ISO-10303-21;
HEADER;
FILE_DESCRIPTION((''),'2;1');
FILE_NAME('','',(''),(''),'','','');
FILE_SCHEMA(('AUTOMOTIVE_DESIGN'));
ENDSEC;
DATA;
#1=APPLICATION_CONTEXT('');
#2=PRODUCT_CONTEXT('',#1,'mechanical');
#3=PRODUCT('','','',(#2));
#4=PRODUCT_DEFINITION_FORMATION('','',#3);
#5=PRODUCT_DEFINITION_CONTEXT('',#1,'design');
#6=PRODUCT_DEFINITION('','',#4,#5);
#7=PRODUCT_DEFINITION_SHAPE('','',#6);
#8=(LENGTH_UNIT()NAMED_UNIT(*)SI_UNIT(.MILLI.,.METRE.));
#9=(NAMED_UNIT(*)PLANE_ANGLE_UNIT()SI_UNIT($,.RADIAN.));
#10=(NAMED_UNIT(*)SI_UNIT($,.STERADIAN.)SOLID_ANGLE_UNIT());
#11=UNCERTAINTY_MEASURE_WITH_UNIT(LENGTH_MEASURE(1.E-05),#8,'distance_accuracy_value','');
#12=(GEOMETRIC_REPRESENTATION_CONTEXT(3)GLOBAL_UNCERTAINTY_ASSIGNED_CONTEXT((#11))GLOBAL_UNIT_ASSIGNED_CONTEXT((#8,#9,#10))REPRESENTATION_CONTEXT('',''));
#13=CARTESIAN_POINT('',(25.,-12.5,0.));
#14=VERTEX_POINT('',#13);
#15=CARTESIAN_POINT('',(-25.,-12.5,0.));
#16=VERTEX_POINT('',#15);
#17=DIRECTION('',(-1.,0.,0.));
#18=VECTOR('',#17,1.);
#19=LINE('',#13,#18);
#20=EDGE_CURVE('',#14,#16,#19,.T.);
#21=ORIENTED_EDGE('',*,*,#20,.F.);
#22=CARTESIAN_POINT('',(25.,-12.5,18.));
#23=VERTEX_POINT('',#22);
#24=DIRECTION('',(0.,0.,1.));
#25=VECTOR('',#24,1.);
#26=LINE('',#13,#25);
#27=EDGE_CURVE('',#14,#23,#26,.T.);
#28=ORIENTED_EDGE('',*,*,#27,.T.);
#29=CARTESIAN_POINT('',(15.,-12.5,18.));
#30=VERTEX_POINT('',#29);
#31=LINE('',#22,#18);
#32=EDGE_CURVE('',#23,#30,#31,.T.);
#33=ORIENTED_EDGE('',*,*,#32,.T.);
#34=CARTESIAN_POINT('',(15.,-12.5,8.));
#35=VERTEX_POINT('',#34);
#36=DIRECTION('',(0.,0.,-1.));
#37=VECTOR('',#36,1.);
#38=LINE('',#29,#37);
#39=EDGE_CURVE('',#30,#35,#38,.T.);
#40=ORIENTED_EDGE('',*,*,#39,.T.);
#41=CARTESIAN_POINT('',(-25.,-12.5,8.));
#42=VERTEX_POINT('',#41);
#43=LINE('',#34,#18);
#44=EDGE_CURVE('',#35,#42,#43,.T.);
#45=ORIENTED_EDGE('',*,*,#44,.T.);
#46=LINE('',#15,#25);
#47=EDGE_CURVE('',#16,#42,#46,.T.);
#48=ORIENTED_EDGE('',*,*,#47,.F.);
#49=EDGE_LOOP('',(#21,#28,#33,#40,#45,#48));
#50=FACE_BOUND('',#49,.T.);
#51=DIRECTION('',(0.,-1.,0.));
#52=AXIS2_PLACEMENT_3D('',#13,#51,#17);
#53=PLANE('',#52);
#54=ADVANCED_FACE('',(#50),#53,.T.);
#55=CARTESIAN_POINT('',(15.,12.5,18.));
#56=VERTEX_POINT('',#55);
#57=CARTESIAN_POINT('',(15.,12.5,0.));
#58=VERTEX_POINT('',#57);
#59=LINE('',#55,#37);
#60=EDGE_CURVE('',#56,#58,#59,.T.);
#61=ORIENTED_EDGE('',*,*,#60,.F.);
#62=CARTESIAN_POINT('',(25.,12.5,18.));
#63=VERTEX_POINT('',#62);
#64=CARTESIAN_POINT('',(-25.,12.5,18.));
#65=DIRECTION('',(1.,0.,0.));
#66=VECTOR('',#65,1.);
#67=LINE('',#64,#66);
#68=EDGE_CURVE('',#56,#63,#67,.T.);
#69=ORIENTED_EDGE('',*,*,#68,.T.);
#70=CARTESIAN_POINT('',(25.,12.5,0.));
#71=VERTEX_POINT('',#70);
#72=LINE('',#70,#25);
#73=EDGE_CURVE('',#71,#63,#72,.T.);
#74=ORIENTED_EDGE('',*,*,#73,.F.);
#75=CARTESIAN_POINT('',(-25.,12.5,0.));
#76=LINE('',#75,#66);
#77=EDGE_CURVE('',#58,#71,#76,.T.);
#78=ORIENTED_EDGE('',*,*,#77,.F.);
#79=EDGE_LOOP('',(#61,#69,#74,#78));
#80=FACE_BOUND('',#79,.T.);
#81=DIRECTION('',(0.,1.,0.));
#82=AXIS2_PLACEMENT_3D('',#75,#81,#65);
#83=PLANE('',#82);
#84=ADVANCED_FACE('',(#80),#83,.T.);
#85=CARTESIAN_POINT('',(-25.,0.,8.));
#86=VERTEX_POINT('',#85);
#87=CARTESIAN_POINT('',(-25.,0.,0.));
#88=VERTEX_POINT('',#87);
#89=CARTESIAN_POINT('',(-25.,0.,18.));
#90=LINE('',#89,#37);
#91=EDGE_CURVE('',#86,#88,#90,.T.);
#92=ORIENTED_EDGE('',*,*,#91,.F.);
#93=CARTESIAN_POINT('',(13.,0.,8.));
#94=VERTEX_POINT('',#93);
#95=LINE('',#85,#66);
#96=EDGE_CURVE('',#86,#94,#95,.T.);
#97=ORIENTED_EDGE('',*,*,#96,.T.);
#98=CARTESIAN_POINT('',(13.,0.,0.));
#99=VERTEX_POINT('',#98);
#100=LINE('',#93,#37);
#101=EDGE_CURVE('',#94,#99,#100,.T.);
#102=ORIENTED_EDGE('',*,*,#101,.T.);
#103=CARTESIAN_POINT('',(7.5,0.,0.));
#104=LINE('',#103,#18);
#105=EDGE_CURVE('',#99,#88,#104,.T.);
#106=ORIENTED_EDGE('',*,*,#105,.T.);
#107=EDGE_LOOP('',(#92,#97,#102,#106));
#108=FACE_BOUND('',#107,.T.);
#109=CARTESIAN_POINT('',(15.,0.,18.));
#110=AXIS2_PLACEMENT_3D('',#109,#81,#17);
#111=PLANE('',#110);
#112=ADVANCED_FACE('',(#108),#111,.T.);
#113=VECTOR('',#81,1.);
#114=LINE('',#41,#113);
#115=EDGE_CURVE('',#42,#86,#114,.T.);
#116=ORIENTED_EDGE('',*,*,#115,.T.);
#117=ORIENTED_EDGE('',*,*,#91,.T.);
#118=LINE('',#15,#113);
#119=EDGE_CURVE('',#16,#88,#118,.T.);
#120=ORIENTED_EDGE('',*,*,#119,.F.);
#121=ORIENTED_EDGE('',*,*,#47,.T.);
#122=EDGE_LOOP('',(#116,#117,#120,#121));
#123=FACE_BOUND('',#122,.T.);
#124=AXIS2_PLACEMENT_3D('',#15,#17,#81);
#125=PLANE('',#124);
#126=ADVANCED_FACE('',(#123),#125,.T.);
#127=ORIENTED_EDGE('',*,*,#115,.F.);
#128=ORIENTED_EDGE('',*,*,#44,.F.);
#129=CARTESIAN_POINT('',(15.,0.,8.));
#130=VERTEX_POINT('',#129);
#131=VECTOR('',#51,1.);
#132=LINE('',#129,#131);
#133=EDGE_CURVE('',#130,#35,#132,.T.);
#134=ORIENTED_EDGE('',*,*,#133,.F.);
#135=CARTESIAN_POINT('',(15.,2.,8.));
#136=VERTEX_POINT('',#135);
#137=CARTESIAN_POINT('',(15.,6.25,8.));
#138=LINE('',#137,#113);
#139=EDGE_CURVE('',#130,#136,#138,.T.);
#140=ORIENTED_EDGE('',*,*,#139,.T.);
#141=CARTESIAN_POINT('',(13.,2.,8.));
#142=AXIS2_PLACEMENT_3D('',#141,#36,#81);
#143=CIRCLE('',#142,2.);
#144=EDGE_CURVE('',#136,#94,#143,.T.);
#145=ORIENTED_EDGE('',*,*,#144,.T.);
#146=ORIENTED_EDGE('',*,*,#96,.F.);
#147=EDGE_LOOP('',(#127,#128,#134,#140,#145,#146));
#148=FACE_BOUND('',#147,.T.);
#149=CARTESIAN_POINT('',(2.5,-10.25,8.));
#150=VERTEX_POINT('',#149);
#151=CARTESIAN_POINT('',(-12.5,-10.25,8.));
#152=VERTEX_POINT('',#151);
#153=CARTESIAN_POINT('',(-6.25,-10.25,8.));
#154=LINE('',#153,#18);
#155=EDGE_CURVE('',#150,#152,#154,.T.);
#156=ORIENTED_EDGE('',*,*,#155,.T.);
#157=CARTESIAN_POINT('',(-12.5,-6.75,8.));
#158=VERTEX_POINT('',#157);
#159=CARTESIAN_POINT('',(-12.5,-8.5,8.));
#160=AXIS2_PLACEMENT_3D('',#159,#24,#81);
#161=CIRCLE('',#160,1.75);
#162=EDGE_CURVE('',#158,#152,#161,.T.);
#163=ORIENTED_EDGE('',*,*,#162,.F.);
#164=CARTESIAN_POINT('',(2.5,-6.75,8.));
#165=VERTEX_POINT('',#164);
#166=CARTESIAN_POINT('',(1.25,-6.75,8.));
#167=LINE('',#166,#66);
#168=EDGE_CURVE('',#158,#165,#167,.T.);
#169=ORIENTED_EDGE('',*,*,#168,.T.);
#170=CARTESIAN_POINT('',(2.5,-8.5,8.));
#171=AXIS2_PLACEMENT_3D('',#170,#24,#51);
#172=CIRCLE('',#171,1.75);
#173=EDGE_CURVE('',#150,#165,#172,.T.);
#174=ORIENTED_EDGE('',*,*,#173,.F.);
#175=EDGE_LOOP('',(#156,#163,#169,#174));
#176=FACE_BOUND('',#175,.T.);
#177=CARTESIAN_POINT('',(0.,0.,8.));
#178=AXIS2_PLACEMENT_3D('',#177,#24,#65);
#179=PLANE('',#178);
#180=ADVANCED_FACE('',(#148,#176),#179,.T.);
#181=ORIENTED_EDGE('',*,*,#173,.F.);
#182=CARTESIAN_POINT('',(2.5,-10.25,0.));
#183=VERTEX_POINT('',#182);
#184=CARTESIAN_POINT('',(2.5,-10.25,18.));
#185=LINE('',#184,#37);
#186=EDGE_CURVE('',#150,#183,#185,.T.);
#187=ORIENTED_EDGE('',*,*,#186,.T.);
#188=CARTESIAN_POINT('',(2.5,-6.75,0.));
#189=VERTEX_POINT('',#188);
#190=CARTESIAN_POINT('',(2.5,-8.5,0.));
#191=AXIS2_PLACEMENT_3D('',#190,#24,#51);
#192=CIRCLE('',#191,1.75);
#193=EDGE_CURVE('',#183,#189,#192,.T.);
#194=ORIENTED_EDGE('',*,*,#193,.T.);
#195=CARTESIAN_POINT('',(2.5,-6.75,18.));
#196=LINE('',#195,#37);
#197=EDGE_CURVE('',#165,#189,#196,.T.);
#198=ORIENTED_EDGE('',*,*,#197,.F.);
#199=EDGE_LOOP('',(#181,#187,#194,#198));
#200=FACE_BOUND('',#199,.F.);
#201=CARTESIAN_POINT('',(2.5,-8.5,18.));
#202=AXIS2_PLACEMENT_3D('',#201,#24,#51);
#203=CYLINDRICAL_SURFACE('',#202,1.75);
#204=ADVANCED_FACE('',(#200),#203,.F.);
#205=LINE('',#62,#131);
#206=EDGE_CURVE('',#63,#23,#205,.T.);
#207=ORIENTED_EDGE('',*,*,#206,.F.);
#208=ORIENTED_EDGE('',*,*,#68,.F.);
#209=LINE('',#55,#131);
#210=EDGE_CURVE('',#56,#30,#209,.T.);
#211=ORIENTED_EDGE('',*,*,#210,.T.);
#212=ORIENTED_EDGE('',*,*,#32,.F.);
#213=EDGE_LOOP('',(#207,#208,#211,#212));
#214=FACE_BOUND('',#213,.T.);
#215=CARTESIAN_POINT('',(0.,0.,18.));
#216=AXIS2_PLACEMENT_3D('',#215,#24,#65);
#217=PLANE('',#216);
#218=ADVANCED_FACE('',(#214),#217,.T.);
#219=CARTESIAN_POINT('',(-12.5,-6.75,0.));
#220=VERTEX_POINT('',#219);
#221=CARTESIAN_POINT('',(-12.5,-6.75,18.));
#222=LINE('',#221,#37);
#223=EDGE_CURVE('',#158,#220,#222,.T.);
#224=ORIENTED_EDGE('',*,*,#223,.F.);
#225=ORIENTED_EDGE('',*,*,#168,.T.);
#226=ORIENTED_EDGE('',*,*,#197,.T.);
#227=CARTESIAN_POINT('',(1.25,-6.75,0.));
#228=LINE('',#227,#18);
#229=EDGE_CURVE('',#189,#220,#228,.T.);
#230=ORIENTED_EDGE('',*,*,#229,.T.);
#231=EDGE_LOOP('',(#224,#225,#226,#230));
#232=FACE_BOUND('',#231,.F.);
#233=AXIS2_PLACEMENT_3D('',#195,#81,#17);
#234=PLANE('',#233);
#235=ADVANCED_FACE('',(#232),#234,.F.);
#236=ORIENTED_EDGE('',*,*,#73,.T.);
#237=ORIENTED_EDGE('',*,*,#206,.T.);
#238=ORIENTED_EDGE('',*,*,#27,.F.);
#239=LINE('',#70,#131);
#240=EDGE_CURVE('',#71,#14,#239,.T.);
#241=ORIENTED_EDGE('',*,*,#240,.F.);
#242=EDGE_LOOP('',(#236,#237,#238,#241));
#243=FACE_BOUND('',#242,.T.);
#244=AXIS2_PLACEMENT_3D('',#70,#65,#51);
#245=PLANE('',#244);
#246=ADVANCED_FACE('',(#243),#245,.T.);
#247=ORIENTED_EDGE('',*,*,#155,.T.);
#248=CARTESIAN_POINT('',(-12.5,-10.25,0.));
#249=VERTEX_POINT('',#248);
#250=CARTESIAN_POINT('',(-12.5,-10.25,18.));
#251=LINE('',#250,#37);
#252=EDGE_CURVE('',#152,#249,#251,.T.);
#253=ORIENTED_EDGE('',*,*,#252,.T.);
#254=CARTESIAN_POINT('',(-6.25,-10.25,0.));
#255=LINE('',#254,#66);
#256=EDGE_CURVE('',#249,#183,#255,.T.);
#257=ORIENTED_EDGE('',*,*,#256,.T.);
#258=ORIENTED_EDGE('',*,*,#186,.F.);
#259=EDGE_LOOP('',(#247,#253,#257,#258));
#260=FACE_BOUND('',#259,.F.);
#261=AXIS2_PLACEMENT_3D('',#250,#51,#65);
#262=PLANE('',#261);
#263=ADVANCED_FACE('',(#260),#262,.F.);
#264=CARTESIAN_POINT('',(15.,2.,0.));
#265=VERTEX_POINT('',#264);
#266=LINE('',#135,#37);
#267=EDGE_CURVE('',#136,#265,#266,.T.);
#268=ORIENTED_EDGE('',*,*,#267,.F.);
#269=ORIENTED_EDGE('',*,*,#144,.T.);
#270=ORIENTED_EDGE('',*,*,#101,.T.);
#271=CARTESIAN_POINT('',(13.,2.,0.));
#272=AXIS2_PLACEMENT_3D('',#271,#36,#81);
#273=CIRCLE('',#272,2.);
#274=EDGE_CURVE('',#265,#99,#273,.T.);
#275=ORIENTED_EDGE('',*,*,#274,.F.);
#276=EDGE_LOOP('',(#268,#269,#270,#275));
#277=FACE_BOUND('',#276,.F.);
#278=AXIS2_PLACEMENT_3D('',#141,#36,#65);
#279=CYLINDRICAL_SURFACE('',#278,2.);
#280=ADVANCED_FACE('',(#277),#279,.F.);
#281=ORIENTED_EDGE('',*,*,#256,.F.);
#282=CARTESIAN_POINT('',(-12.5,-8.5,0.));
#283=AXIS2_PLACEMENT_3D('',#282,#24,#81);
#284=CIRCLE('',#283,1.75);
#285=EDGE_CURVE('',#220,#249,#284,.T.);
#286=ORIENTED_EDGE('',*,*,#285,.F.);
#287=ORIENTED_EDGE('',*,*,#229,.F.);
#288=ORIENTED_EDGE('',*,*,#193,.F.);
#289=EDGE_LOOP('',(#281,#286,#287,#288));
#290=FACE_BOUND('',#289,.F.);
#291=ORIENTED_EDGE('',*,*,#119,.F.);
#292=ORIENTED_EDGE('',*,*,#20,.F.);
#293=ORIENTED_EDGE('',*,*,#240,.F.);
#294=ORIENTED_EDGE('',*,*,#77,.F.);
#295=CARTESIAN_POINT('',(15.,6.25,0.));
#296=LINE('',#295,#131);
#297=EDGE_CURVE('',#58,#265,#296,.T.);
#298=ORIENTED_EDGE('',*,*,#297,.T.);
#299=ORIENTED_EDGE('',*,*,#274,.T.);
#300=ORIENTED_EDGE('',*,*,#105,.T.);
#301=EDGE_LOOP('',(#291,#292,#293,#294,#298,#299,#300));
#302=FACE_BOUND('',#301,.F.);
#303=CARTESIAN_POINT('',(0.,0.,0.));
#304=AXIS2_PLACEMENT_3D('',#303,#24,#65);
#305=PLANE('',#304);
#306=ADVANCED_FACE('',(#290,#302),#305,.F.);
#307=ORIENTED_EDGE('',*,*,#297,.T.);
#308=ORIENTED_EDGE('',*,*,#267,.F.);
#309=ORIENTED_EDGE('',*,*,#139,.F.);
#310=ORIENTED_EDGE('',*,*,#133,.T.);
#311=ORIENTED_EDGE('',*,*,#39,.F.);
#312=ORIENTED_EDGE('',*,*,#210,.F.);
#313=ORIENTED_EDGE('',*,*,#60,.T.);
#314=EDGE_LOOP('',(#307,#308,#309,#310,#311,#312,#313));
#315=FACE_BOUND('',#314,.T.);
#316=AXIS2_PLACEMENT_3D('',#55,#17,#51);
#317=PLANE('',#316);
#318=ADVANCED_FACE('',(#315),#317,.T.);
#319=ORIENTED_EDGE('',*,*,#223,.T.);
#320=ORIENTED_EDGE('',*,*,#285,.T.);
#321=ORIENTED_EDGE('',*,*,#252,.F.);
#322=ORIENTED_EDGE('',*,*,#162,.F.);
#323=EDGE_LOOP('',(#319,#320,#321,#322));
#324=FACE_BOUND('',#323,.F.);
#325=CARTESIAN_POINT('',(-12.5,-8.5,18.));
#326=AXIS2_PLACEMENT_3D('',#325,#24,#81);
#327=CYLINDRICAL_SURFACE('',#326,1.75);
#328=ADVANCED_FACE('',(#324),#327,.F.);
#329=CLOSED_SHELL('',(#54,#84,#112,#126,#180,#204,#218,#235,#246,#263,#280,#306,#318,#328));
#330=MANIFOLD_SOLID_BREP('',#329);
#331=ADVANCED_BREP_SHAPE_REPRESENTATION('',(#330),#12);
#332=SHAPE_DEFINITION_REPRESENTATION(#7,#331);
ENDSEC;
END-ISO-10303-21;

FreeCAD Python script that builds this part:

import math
import FreeCAD as App
import Part
import Sketcher
Q = App.Units.Quantity


def edges_at(feature, points):
    """Names of the edges that pass closest to the given points."""
    edges = feature.Shape.Edges
    near = lambda p: min(range(len(edges)), key=lambda i: edges[i].distToShape(Part.Vertex(*p))[0])
    return sorted({f"Edge{near(p) + 1}" for p in points})

doc = App.newDocument("Part")
body = doc.addObject("PartDesign::Body", "Body")

# Sketch on XY plane
sketch1 = body.newObject("Sketcher::SketchObject", "Sketch")
sketch1.AttachmentSupport = (doc.getObject("XY_Plane"), [""])
sketch1.MapMode = "FlatFace"
sketch1.addGeometry([
    Part.LineSegment(App.Vector(25, 12.5, 0), App.Vector(-25, 12.5, 0)),
    Part.LineSegment(App.Vector(-25, 12.5, 0), App.Vector(-25, -12.5, 0)),
    Part.LineSegment(App.Vector(-25, -12.5, 0), App.Vector(25, -12.5, 0)),
    Part.LineSegment(App.Vector(25, -12.5, 0), App.Vector(25, 12.5, 0)),
], False)
sketch1.addConstraint([
    Sketcher.Constraint("Coincident", 0, 2, 1, 1),
    Sketcher.Constraint("Coincident", 1, 2, 2, 1),
    Sketcher.Constraint("Coincident", 2, 2, 3, 1),
    Sketcher.Constraint("Coincident", 3, 2, 0, 1),
    Sketcher.Constraint("Horizontal", 0),
    Sketcher.Constraint("Vertical", 1),
    Sketcher.Constraint("Horizontal", 2),
    Sketcher.Constraint("Vertical", 3),
    Sketcher.Constraint("Symmetric", 0, 2, 2, 2, -1, 1),
    Sketcher.Constraint("DistanceX", 0, 2, 0, 1, Q("50 mm")),
    Sketcher.Constraint("DistanceY", 1, 2, 1, 1, Q("25 mm")),
])
pad1 = body.newObject("PartDesign::Pad", "Pad")
pad1.Profile = sketch1
pad1.Length = 18

# Sketch on XY plane
sketch2 = body.newObject("Sketcher::SketchObject", "Sketch001")
sketch2.AttachmentSupport = (doc.getObject("XY_Plane"), [""])
sketch2.MapMode = "FlatFace"
sketch2.AttachmentOffset = App.Placement(App.Vector(0, 0, 18), App.Rotation())
sketch2.addGeometry([
    Part.ArcOfCircle(Part.Circle(App.Vector(2.5, -8.5, 0), App.Vector(0, 0, 1), 1.75), math.radians(-90), math.radians(90)),
    Part.LineSegment(App.Vector(2.5, -6.75, 0), App.Vector(-12.5, -6.75, 0)),
    Part.ArcOfCircle(Part.Circle(App.Vector(-12.5, -8.5, 0), App.Vector(0, 0, 1), 1.75), math.radians(90), math.radians(270)),
    Part.LineSegment(App.Vector(-12.5, -10.25, 0), App.Vector(2.5, -10.25, 0)),
], False)
sketch2.addConstraint([
    Sketcher.Constraint("Tangent", 0, 2, 1, 1),
    Sketcher.Constraint("Tangent", 1, 2, 2, 1),
    Sketcher.Constraint("Tangent", 2, 2, 3, 1),
    Sketcher.Constraint("Tangent", 3, 2, 0, 1),
    Sketcher.Constraint("Horizontal", 1),
    Sketcher.Constraint("Horizontal", 3),
    Sketcher.Constraint("DistanceX", 1, 2, 1, 1, Q("15 mm")),
    Sketcher.Constraint("Radius", 0, Q("1.75 mm")),
    Sketcher.Constraint("DistanceX", -1, 1, 0, 3, Q("2.5 mm")),
    Sketcher.Constraint("DistanceY", 0, 3, -1, 1, Q("8.5 mm")),
])
pocket1 = body.newObject("PartDesign::Pocket", "Pocket")
pocket1.Profile = sketch2
pocket1.Type = "ThroughAll"

# Sketch on XY plane
sketch3 = body.newObject("Sketcher::SketchObject", "Sketch002")
sketch3.AttachmentSupport = (doc.getObject("XY_Plane"), [""])
sketch3.MapMode = "FlatFace"
sketch3.AttachmentOffset = App.Placement(App.Vector(0, 0, 18), App.Rotation())
sketch3.addGeometry([
    Part.LineSegment(App.Vector(-25, 0, 0), App.Vector(15, 0, 0)),
    Part.LineSegment(App.Vector(15, 0, 0), App.Vector(15, 12.5, 0)),
    Part.LineSegment(App.Vector(15, 12.5, 0), App.Vector(-25, 12.5, 0)),
    Part.LineSegment(App.Vector(-25, 12.5, 0), App.Vector(-25, 0, 0)),
], False)
sketch3.addConstraint([
    Sketcher.Constraint("Coincident", 0, 2, 1, 1),
    Sketcher.Constraint("Coincident", 1, 2, 2, 1),
    Sketcher.Constraint("Coincident", 2, 2, 3, 1),
    Sketcher.Constraint("Coincident", 3, 2, 0, 1),
    Sketcher.Constraint("Horizontal", 0),
    Sketcher.Constraint("Vertical", 1),
    Sketcher.Constraint("Horizontal", 2),
    Sketcher.Constraint("Vertical", 3),
    Sketcher.Constraint("PointOnObject", 0, 2, -1),
    Sketcher.Constraint("DistanceX", 0, 1, 0, 2, Q("40 mm")),
    Sketcher.Constraint("DistanceY", 1, 1, 1, 2, Q("12.5 mm")),
    Sketcher.Constraint("DistanceX", -1, 1, 0, 2, Q("15 mm")),
])
pocket2 = body.newObject("PartDesign::Pocket", "Pocket001")
pocket2.Profile = sketch3
pocket2.Type = "ThroughAll"

# Sketch on XY plane
sketch4 = body.newObject("Sketcher::SketchObject", "Sketch003")
sketch4.AttachmentSupport = (doc.getObject("XY_Plane"), [""])
sketch4.MapMode = "FlatFace"
sketch4.AttachmentOffset = App.Placement(App.Vector(0, 0, 18), App.Rotation())
sketch4.addGeometry([
    Part.LineSegment(App.Vector(-25, -12.5, 0), App.Vector(15, -12.5, 0)),
    Part.LineSegment(App.Vector(15, -12.5, 0), App.Vector(15, 0, 0)),
    Part.LineSegment(App.Vector(15, 0, 0), App.Vector(-25, 0, 0)),
    Part.LineSegment(App.Vector(-25, 0, 0), App.Vector(-25, -12.5, 0)),
], False)
sketch4.addConstraint([
    Sketcher.Constraint("Coincident", 0, 2, 1, 1),
    Sketcher.Constraint("Coincident", 1, 2, 2, 1),
    Sketcher.Constraint("Coincident", 2, 2, 3, 1),
    Sketcher.Constraint("Coincident", 3, 2, 0, 1),
    Sketcher.Constraint("Horizontal", 0),
    Sketcher.Constraint("Vertical", 1),
    Sketcher.Constraint("Horizontal", 2),
    Sketcher.Constraint("Vertical", 3),
    Sketcher.Constraint("PointOnObject", 1, 2, -1),
    Sketcher.Constraint("DistanceX", 0, 1, 0, 2, Q("40 mm")),
    Sketcher.Constraint("DistanceY", 1, 1, 1, 2, Q("12.5 mm")),
    Sketcher.Constraint("DistanceX", -1, 1, 0, 2, Q("15 mm")),
])
pocket3 = body.newObject("PartDesign::Pocket", "Pocket002")
pocket3.Profile = sketch4
pocket3.Length = 10
doc.recompute()

fillet = body.newObject("PartDesign::Fillet", "Fillet")
fillet.Base = (pocket3, edges_at(pocket3, [(15, 0, 4)]))
fillet.Radius = 2

doc.recompute()
